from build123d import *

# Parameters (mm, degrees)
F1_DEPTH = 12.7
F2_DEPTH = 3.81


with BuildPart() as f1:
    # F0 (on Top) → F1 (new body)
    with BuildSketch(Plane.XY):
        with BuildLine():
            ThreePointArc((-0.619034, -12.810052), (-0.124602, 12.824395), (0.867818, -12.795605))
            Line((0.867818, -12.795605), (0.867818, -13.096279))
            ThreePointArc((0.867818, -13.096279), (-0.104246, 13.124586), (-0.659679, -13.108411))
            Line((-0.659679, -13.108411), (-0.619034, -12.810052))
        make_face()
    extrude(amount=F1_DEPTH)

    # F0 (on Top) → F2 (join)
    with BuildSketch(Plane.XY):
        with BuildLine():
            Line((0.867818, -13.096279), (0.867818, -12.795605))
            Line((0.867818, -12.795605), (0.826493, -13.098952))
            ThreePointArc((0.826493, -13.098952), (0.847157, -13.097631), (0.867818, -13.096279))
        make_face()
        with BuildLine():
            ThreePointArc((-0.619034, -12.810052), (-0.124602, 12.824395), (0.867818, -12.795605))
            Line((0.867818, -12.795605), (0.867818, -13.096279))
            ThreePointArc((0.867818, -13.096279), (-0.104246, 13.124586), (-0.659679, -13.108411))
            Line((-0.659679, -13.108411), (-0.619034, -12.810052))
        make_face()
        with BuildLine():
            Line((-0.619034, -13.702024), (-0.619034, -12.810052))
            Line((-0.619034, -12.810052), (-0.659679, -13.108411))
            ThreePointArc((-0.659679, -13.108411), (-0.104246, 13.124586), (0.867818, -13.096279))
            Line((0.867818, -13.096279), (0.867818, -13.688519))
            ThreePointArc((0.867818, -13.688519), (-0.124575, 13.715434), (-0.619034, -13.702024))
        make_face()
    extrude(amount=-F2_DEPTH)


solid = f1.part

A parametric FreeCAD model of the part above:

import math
import FreeCAD as App
import Part
import Sketcher
Q = App.Units.Quantity

doc = App.newDocument("Part")
params = doc.addObject("Spreadsheet::Sheet", "Params")
for row, (alias, value) in enumerate([
    ("pad1_length", "0.5 in"),
    ("sketch2_radius", "0.54 in"),
    ("pad2_length", "0.15 in"),
], start=1):
    params.set(f"A{row}", alias)
    params.set(f"B{row}", "=" + value)
    params.setAlias(f"B{row}", alias)

body = doc.addObject("PartDesign::Body", "Body")

sketch1 = doc.addObject("Sketcher::SketchObject", "Sketch")
body.addObject(sketch1)
sketch1.AttachmentSupport = (doc.XY_Plane, [""])
sketch1.MapMode = "FlatFace"
sketch1.addGeometry([
    Part.ArcOfCircle(Part.Circle(App.Vector(0, 0, 0), App.Vector(0, 0, 1), 12.83), math.radians(-86), math.radians(267)),
    Part.LineSegment(App.Vector(0.87, -12.8, 0), App.Vector(0.87, -13.1, 0)),
    Part.ArcOfCircle(Part.Circle(App.Vector(0, 0, 0), App.Vector(0, 0, 1), 13.12), math.radians(-86), math.radians(267)),
    Part.LineSegment(App.Vector(-0.66, -13.11, 0), App.Vector(-0.62, -12.81, 0)),
], False)
sketch1.addConstraint([
    Sketcher.Constraint("Coincident", 0, 1, 1, 1),
    Sketcher.Constraint("Coincident", 1, 2, 2, 1),
    Sketcher.Constraint("Coincident", 2, 2, 3, 1),
    Sketcher.Constraint("Coincident", 3, 2, 0, 2),
    Sketcher.Constraint("Vertical", 1),
    Sketcher.Constraint("Coincident", 0, 3, -1, 1),
    Sketcher.Constraint("Coincident", 2, 3, -1, 1),
    Sketcher.Constraint("Radius", 0, 12.825),
    Sketcher.Constraint("Radius", 2, 13.125),
    Sketcher.Constraint("DistanceX", 2, 2, 3, 2, Q("0.0016002 in")),
    Sketcher.Constraint("DistanceX", -1, 1, 0, 1, 0.867818),
    Sketcher.Constraint("DistanceX", 2, 2, -1, 1, 0.659679),
])
pad1 = doc.addObject("PartDesign::Pad", "Pad")
body.addObject(pad1)
pad1.Profile = sketch1
pad1.setExpression("Length", "Params.pad1_length")

sketch2 = doc.addObject("Sketcher::SketchObject", "Sketch001")
body.addObject(sketch2)
sketch2.AttachmentSupport = (doc.XY_Plane, [""])
sketch2.MapMode = "FlatFace"
sketch2.addGeometry([
    Part.LineSegment(App.Vector(0.868, -12.796, 0), App.Vector(0.826, -13.099, 0)),
    Part.ArcOfCircle(Part.Circle(App.Vector(-0.042, 0.646, 0), App.Vector(0, 0, 1), 13.773), math.radians(-86.39), math.radians(-86.21)),
    Part.LineSegment(App.Vector(0.868, -13.096, 0), App.Vector(0.868, -13.689, 0)),
    Part.ArcOfCircle(Part.Circle(App.Vector(0, 0, 0), App.Vector(0, 0, 1), 13.716), math.radians(-86), math.radians(267)),
    Part.LineSegment(App.Vector(-0.619, -13.702, 0), App.Vector(-0.619, -12.81, 0)),
    Part.ArcOfCircle(Part.Circle(App.Vector(0, 0, 0), App.Vector(0, 0, 1), 12.825), math.radians(-86), math.radians(267)),
], False)
sketch2.addConstraint([
    Sketcher.Constraint("Coincident", 0, 2, 1, 1),
    Sketcher.Constraint("Coincident", 1, 2, 2, 1),
    Sketcher.Constraint("Coincident", 2, 2, 3, 1),
    Sketcher.Constraint("Coincident", 3, 2, 4, 1),
    Sketcher.Constraint("Coincident", 4, 2, 5, 2),
    Sketcher.Constraint("Coincident", 5, 1, 0, 1),
    Sketcher.Constraint("Vertical", 2),
    Sketcher.Constraint("Vertical", 4),
    Sketcher.Constraint("Coincident", 3, 3, -1, 1),
    Sketcher.Constraint("Coincident", 5, 3, -1, 1),
    Sketcher.Constraint("Vertical", 2, 2, 5, 1),
    Sketcher.Constraint("Radius", 3, Q("0.54 in")),
    Sketcher.Constraint("Radius", 5, 12.825),
    Sketcher.Constraint("Radius", 1, 13.772541),
    Sketcher.Constraint("DistanceY", 2, 2, 2, 1, 0.59224),
    Sketcher.Constraint("DistanceX", 5, 3, 0, 2, 0.8265),
    Sketcher.Constraint("DistanceY", 0, 2, 4, 2, 0.2889),
    Sketcher.Constraint("Distance", 0, 0.306149),
    Sketcher.Constraint("DistanceY", -1, 1, 1, 3, 0.646189),
])
sketch2.setExpression("Constraints[11]", "Params.sketch2_radius")
pad2 = doc.addObject("PartDesign::Pad", "Pad001")
body.addObject(pad2)
pad2.Profile = sketch2
pad2.setExpression("Length", "Params.pad2_length")
pad2.Reversed = True

doc.recompute()
